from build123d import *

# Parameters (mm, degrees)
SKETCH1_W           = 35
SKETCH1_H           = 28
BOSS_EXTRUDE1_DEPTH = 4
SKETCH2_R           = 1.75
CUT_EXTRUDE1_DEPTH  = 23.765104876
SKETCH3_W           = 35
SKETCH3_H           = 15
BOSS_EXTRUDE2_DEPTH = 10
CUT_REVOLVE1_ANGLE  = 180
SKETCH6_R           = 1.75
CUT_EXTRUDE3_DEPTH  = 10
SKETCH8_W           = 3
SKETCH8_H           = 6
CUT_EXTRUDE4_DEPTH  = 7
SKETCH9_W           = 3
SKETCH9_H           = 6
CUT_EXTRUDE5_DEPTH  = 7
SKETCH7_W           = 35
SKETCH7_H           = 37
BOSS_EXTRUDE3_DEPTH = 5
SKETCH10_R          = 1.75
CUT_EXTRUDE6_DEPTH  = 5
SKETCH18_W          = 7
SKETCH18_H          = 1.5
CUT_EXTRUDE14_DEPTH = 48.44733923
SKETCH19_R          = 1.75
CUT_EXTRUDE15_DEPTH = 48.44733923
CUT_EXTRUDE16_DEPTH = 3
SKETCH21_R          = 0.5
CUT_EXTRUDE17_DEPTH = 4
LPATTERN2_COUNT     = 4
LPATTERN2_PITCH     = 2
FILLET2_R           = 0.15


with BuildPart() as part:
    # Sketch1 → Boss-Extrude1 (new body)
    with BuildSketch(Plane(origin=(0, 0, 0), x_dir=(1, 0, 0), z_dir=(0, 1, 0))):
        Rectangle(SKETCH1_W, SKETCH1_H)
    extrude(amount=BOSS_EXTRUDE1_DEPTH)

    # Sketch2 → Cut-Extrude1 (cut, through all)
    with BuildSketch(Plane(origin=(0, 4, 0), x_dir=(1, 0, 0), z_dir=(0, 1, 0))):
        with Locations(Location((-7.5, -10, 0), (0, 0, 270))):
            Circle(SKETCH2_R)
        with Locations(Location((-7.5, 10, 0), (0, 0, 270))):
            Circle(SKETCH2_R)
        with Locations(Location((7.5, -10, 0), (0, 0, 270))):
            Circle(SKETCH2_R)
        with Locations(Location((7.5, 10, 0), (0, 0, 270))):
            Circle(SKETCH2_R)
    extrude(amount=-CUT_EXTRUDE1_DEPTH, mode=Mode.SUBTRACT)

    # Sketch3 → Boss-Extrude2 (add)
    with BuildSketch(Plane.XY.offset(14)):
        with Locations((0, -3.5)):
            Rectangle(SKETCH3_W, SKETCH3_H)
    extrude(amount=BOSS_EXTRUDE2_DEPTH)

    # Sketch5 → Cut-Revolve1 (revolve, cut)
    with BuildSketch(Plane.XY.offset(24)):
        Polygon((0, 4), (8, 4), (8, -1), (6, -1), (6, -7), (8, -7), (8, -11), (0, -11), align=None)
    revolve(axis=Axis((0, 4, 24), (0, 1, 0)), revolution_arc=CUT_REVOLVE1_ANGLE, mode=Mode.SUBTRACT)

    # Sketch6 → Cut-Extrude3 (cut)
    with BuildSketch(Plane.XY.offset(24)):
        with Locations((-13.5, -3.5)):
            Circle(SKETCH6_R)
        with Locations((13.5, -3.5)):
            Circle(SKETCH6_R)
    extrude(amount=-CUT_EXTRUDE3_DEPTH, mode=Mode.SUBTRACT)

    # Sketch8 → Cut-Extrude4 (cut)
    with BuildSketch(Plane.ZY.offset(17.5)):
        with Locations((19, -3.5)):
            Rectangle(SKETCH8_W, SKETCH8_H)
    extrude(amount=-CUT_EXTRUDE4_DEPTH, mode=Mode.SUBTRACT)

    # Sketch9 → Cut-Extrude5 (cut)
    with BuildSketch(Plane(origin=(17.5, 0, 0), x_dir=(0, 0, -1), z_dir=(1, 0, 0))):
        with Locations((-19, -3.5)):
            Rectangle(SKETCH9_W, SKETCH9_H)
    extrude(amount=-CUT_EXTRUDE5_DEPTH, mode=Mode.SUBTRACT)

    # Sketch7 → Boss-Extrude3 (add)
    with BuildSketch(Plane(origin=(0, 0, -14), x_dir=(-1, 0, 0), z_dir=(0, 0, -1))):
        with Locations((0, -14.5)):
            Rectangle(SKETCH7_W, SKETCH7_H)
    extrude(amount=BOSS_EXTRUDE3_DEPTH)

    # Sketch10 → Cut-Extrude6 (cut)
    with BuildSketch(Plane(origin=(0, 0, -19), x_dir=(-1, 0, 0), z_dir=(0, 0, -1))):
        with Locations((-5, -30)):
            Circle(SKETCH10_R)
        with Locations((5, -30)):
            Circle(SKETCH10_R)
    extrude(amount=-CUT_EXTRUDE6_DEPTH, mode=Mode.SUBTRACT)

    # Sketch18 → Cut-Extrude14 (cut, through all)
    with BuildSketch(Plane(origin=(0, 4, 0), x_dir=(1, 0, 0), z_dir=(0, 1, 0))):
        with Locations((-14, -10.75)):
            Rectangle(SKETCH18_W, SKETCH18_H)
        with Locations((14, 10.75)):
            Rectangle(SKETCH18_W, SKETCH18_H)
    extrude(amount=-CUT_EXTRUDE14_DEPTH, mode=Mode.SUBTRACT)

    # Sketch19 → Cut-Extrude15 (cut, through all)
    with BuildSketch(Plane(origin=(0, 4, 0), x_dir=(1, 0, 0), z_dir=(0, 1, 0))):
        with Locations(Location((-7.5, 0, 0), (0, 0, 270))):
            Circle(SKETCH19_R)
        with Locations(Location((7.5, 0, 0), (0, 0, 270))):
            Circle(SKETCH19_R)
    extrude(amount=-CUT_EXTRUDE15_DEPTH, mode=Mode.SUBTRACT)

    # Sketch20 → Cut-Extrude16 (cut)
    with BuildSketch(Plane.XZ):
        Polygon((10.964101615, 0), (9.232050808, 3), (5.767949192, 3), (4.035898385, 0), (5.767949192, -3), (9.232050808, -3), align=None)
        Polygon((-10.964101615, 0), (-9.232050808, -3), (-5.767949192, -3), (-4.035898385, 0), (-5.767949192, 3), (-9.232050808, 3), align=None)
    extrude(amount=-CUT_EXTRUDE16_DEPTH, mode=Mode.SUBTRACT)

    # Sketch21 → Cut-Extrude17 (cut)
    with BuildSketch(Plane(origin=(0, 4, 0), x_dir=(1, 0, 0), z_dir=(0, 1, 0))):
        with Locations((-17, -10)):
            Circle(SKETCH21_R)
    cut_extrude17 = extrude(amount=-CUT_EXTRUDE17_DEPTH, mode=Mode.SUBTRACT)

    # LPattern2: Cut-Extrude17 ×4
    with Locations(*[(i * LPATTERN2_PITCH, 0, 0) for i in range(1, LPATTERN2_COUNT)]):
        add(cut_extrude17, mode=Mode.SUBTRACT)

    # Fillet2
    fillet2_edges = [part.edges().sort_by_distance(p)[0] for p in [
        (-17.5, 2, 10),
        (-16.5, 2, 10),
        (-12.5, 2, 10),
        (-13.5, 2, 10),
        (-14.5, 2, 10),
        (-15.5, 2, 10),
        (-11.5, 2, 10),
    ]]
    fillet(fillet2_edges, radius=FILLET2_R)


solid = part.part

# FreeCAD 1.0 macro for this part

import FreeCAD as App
import Part
import Sketcher

V = App.Vector
Q = App.Units.Quantity


def edges_at(feature, points):
    """Names of the edges that pass closest to the given points."""
    edges = feature.Shape.Edges
    near = lambda p: min(range(len(edges)), key=lambda i: edges[i].distToShape(Part.Vertex(*p))[0])
    return sorted({f"Edge{near(p) + 1}" for p in points})


def add_polygon(sketch, points):
    """Adds a closed chain of lines whose ends are joined by coincident constraints."""
    first, n = sketch.GeometryCount, len(points)
    for a, b in zip(points, points[1:] + points[:1]):
        sketch.addGeometry(Part.LineSegment(App.Vector(*a, 0), App.Vector(*b, 0)), False)
    for i in range(n):
        sketch.addConstraint(Sketcher.Constraint("Coincident", first + i, 2, first + (i + 1) % n, 1))

doc = App.newDocument("Part")
body = doc.addObject("PartDesign::Body", "Body")

# Sketch on XZ plane
sketch1 = body.newObject("Sketcher::SketchObject", "Sketch")
sketch1.AttachmentSupport = (doc.getObject("XZ_Plane"), [""])
sketch1.MapMode = "FlatFace"
add_polygon(sketch1, [(-18, -14), (-18, 14), (18, 14), (18, -14)])  # lines 0-3
sketch1.addConstraint(Sketcher.Constraint("Vertical", 0))
sketch1.addConstraint(Sketcher.Constraint("Horizontal", 1))
sketch1.addConstraint(Sketcher.Constraint("Vertical", 2))
sketch1.addConstraint(Sketcher.Constraint("Horizontal", 3))
sketch1.addConstraint(Sketcher.Constraint("Symmetric", 0, 2, 2, 2, -1, 1))
sketch1.addConstraint(Sketcher.Constraint("DistanceX", 1, 1, 1, 2, 35.0))
sketch1.addConstraint(Sketcher.Constraint("DistanceY", 0, 1, 0, 2, 28.0))
pad1 = body.newObject("PartDesign::Pad", "Pad")
pad1.Profile = sketch1
pad1.Length = 4
pad1.Reversed = True

# Sketch on XZ plane
sketch2 = body.newObject("Sketcher::SketchObject", "Sketch001")
sketch2.AttachmentSupport = (doc.getObject("XZ_Plane"), [""])
sketch2.MapMode = "FlatFace"
sketch2.AttachmentOffset = App.Placement(V(0, 0, -4), App.Rotation())
sketch2.addGeometry(Part.Circle(V(-7.5, 10, 0), V(0, 0, 1), 1.8), False)
sketch2.addGeometry(Part.Circle(V(-7.5, -10, 0), V(0, 0, 1), 1.8), False)
sketch2.addGeometry(Part.Circle(V(7.5, 10, 0), V(0, 0, 1), 1.8), False)
sketch2.addGeometry(Part.Circle(V(7.5, -10, 0), V(0, 0, 1), 1.8), False)
sketch2.addConstraint(Sketcher.Constraint("Equal", 0, 1))
sketch2.addConstraint(Sketcher.Constraint("Equal", 1, 2))
sketch2.addConstraint(Sketcher.Constraint("Equal", 2, 3))
sketch2.addConstraint(Sketcher.Constraint("Symmetric", 1, 3, 2, 3, -1, 1))
sketch2.addConstraint(Sketcher.Constraint("Symmetric", 0, 3, 3, 3, -1, 1))
sketch2.addConstraint(Sketcher.Constraint("Symmetric", 0, 3, 2, 3, -2))
sketch2.addConstraint(Sketcher.Constraint("Diameter", 0, 3.5))
sketch2.addConstraint(Sketcher.Constraint("DistanceY", -1, 1, 0, 3, 10.0))
sketch2.addConstraint(Sketcher.Constraint("DistanceX", 0, 3, 2, 3, 15.0))
pocket1 = body.newObject("PartDesign::Pocket", "Pocket")
pocket1.Profile = sketch2
pocket1.Type = "ThroughAll"
pocket1.Reversed = True

# Sketch on XY plane
sketch3 = body.newObject("Sketcher::SketchObject", "Sketch002")
sketch3.AttachmentSupport = (doc.getObject("XY_Plane"), [""])
sketch3.MapMode = "FlatFace"
sketch3.AttachmentOffset = App.Placement(V(0, 0, 14), App.Rotation())
add_polygon(sketch3, [(-18, 4), (-18, -11), (18, -11), (18, 4)])  # lines 0-3
sketch3.addConstraint(Sketcher.Constraint("Vertical", 0))
sketch3.addConstraint(Sketcher.Constraint("Horizontal", 1))
sketch3.addConstraint(Sketcher.Constraint("Vertical", 2))
sketch3.addConstraint(Sketcher.Constraint("Horizontal", 3))
sketch3.addConstraint(Sketcher.Constraint("DistanceX", 1, 1, 1, 2, 35.0))
sketch3.addConstraint(Sketcher.Constraint("DistanceY", 0, 2, 0, 1, 15.0))
sketch3.addConstraint(Sketcher.Constraint("DistanceY", 0, 2, -1, 1, 11.0))
sketch3.addConstraint(Sketcher.Constraint("DistanceX", 0, 2, -1, 1, 17.5))
pad2 = body.newObject("PartDesign::Pad", "Pad001")
pad2.Profile = sketch3
pad2.Length = 10

# Sketch on XY plane
sketch4 = body.newObject("Sketcher::SketchObject", "Sketch003")
sketch4.AttachmentSupport = (doc.getObject("XY_Plane"), [""])
sketch4.MapMode = "FlatFace"
sketch4.AttachmentOffset = App.Placement(V(0, 0, 24), App.Rotation())
add_polygon(sketch4, [(8, 4), (0, 4), (0, -11), (8, -11), (8, -7), (6, -7), (6, -1), (8, -1)])  # lines 0-7
sketch4.addConstraint(Sketcher.Constraint("Horizontal", 0))
sketch4.addConstraint(Sketcher.Constraint("Vertical", 1))
sketch4.addConstraint(Sketcher.Constraint("Horizontal", 2))
sketch4.addConstraint(Sketcher.Constraint("Vertical", 3))
sketch4.addConstraint(Sketcher.Constraint("Horizontal", 4))
sketch4.addConstraint(Sketcher.Constraint("Vertical", 5))
sketch4.addConstraint(Sketcher.Constraint("Horizontal", 6))
sketch4.addConstraint(Sketcher.Constraint("Vertical", 7))
sketch4.addConstraint(Sketcher.Constraint("PointOnObject", 0, 2, -2))
sketch4.addConstraint(Sketcher.Constraint("Vertical", 3, 2, 6, 2))
sketch4.addConstraint(Sketcher.Constraint("DistanceX", 0, 2, 0, 1, 8.0))
sketch4.addConstraint(Sketcher.Constraint("DistanceX", 4, 2, 4, 1, 2.0))
sketch4.addConstraint(Sketcher.Constraint("DistanceY", 1, 2, 1, 1, 15.0))
sketch4.addConstraint(Sketcher.Constraint("DistanceY", 3, 1, 3, 2, 4.0))
sketch4.addConstraint(Sketcher.Constraint("DistanceY", 5, 1, 5, 2, 6.0))
sketch4.addConstraint(Sketcher.Constraint("DistanceY", -1, 1, 0, 2, 4.0))
groove = body.newObject("PartDesign::Groove", "Groove")
groove.Profile = sketch4
groove.ReferenceAxis = (sketch4, ["V_Axis"])
groove.Angle = 180

# Sketch on XY plane
sketch5 = body.newObject("Sketcher::SketchObject", "Sketch004")
sketch5.AttachmentSupport = (doc.getObject("XY_Plane"), [""])
sketch5.MapMode = "FlatFace"
sketch5.AttachmentOffset = App.Placement(V(0, 0, 24), App.Rotation())
sketch5.addGeometry(Part.Circle(V(-13.5, -3.5, 0), V(0, 0, 1), 1.8), False)
sketch5.addGeometry(Part.Circle(V(13.5, -3.5, 0), V(0, 0, 1), 1.8), False)
sketch5.addConstraint(Sketcher.Constraint("Equal", 0, 1))
sketch5.addConstraint(Sketcher.Constraint("Symmetric", 0, 3, 1, 3, -2))
sketch5.addConstraint(Sketcher.Constraint("Diameter", 0, 3.5))
sketch5.addConstraint(Sketcher.Constraint("DistanceX", 0, 3, 1, 3, 27.0))
sketch5.addConstraint(Sketcher.Constraint("DistanceY", 0, 3, -1, 1, 3.5))
pocket2 = body.newObject("PartDesign::Pocket", "Pocket001")
pocket2.Profile = sketch5
pocket2.Length = 10

# Sketch on YZ plane
sketch6 = body.newObject("Sketcher::SketchObject", "Sketch005")
sketch6.AttachmentSupport = (doc.getObject("YZ_Plane"), [""])
sketch6.MapMode = "FlatFace"
sketch6.AttachmentOffset = App.Placement(V(0, 0, -17.5), App.Rotation())
add_polygon(sketch6, [(-0.5, 17.5), (-6.5, 17.5), (-6.5, 20.5), (-0.5, 20.5)])  # lines 0-3
sketch6.addConstraint(Sketcher.Constraint("Horizontal", 0))
sketch6.addConstraint(Sketcher.Constraint("Vertical", 1))
sketch6.addConstraint(Sketcher.Constraint("Horizontal", 2))
sketch6.addConstraint(Sketcher.Constraint("Vertical", 3))
sketch6.addConstraint(Sketcher.Constraint("DistanceX", 0, 2, 0, 1, 6.0))
sketch6.addConstraint(Sketcher.Constraint("DistanceY", 1, 1, 1, 2, 3.0))
sketch6.addConstraint(Sketcher.Constraint("DistanceX", 0, 2, -1, 1, 6.5))
sketch6.addConstraint(Sketcher.Constraint("DistanceY", -1, 1, 0, 2, 17.5))
pocket3 = body.newObject("PartDesign::Pocket", "Pocket002")
pocket3.Profile = sketch6
pocket3.Length = 7
pocket3.Reversed = True

# Sketch on YZ plane
sketch7 = body.newObject("Sketcher::SketchObject", "Sketch006")
sketch7.AttachmentSupport = (doc.getObject("YZ_Plane"), [""])
sketch7.MapMode = "FlatFace"
sketch7.AttachmentOffset = App.Placement(V(0, 0, 17.5), App.Rotation())
add_polygon(sketch7, [(-0.5, 20.5), (-6.5, 20.5), (-6.5, 17.5), (-0.5, 17.5)])  # lines 0-3
sketch7.addConstraint(Sketcher.Constraint("Horizontal", 0))
sketch7.addConstraint(Sketcher.Constraint("Vertical", 1))
sketch7.addConstraint(Sketcher.Constraint("Horizontal", 2))
sketch7.addConstraint(Sketcher.Constraint("Vertical", 3))
sketch7.addConstraint(Sketcher.Constraint("DistanceX", 0, 2, 0, 1, 6.0))
sketch7.addConstraint(Sketcher.Constraint("DistanceY", 1, 2, 1, 1, 3.0))
sketch7.addConstraint(Sketcher.Constraint("DistanceX", 0, 2, -1, 1, 6.5))
sketch7.addConstraint(Sketcher.Constraint("DistanceY", -1, 1, 0, 2, 20.5))
pocket4 = body.newObject("PartDesign::Pocket", "Pocket003")
pocket4.Profile = sketch7
pocket4.Length = 7

# Sketch on XY plane
sketch8 = body.newObject("Sketcher::SketchObject", "Sketch007")
sketch8.AttachmentSupport = (doc.getObject("XY_Plane"), [""])
sketch8.MapMode = "FlatFace"
sketch8.AttachmentOffset = App.Placement(V(0, 0, -14), App.Rotation())
add_polygon(sketch8, [(18, 4), (18, -33), (-18, -33), (-18, 4)])  # lines 0-3
sketch8.addConstraint(Sketcher.Constraint("Vertical", 0))
sketch8.addConstraint(Sketcher.Constraint("Horizontal", 1))
sketch8.addConstraint(Sketcher.Constraint("Vertical", 2))
sketch8.addConstraint(Sketcher.Constraint("Horizontal", 3))
sketch8.addConstraint(Sketcher.Constraint("DistanceX", 1, 2, 1, 1, 35.0))
sketch8.addConstraint(Sketcher.Constraint("DistanceY", 0, 2, 0, 1, 37.0))
sketch8.addConstraint(Sketcher.Constraint("DistanceY", 0, 2, -1, 1, 33.0))
sketch8.addConstraint(Sketcher.Constraint("DistanceX", -1, 1, 0, 2, 17.5))
pad3 = body.newObject("PartDesign::Pad", "Pad002")
pad3.Profile = sketch8
pad3.Length = 5
pad3.Reversed = True

# Sketch on XY plane
sketch9 = body.newObject("Sketcher::SketchObject", "Sketch008")
sketch9.AttachmentSupport = (doc.getObject("XY_Plane"), [""])
sketch9.MapMode = "FlatFace"
sketch9.AttachmentOffset = App.Placement(V(0, 0, -19), App.Rotation())
sketch9.addGeometry(Part.Circle(V(5, -30, 0), V(0, 0, 1), 1.8), False)
sketch9.addGeometry(Part.Circle(V(-5, -30, 0), V(0, 0, 1), 1.8), False)
sketch9.addConstraint(Sketcher.Constraint("Equal", 0, 1))
sketch9.addConstraint(Sketcher.Constraint("Symmetric", 0, 3, 1, 3, -2))
sketch9.addConstraint(Sketcher.Constraint("Diameter", 0, 3.5))
sketch9.addConstraint(Sketcher.Constraint("DistanceX", -1, 1, 0, 3, 5.0))
sketch9.addConstraint(Sketcher.Constraint("DistanceY", 0, 3, -1, 1, 30.0))
pocket5 = body.newObject("PartDesign::Pocket", "Pocket004")
pocket5.Profile = sketch9
pocket5.Length = 5
pocket5.Reversed = True

# Sketch on XZ plane
sketch10 = body.newObject("Sketcher::SketchObject", "Sketch009")
sketch10.AttachmentSupport = (doc.getObject("XZ_Plane"), [""])
sketch10.MapMode = "FlatFace"
sketch10.AttachmentOffset = App.Placement(V(0, 0, -4), App.Rotation())
add_polygon(sketch10, [(-17.5, 10), (-17.5, 11.5), (-10.5, 11.5), (-10.5, 10)])  # lines 0-3
add_polygon(sketch10, [(10.5, -11.5), (10.5, -10), (17.5, -10), (17.5, -11.5)])  # lines 4-7
sketch10.addConstraint(Sketcher.Constraint("Vertical", 0))
sketch10.addConstraint(Sketcher.Constraint("Horizontal", 1))
sketch10.addConstraint(Sketcher.Constraint("Vertical", 2))
sketch10.addConstraint(Sketcher.Constraint("Horizontal", 3))
sketch10.addConstraint(Sketcher.Constraint("Vertical", 4))
sketch10.addConstraint(Sketcher.Constraint("Horizontal", 5))
sketch10.addConstraint(Sketcher.Constraint("Vertical", 6))
sketch10.addConstraint(Sketcher.Constraint("Horizontal", 7))
sketch10.addConstraint(Sketcher.Constraint("Symmetric", 2, 2, 4, 2, -1, 1))
sketch10.addConstraint(Sketcher.Constraint("Symmetric", 0, 2, 6, 2, -1, 1))
sketch10.addConstraint(Sketcher.Constraint("DistanceX", 1, 1, 1, 2, 7.0))
sketch10.addConstraint(Sketcher.Constraint("DistanceY", 0, 1, 0, 2, 1.5))
sketch10.addConstraint(Sketcher.Constraint("DistanceY", -1, 1, 2, 2, 10.0))
sketch10.addConstraint(Sketcher.Constraint("DistanceX", 2, 2, 4, 2, 21.0))
pocket6 = body.newObject("PartDesign::Pocket", "Pocket005")
pocket6.Profile = sketch10
pocket6.Type = "ThroughAll"
pocket6.Reversed = True

# Sketch on XZ plane
sketch11 = body.newObject("Sketcher::SketchObject", "Sketch010")
sketch11.AttachmentSupport = (doc.getObject("XZ_Plane"), [""])
sketch11.MapMode = "FlatFace"
sketch11.AttachmentOffset = App.Placement(V(0, 0, -4), App.Rotation())
sketch11.addGeometry(Part.Circle(V(-7.5, 0, 0), V(0, 0, 1), 1.8), False)
sketch11.addGeometry(Part.Circle(V(7.5, 0, 0), V(0, 0, 1), 1.8), False)
sketch11.addConstraint(Sketcher.Constraint("Equal", 0, 1))
sketch11.addConstraint(Sketcher.Constraint("Symmetric", 0, 3, 1, 3, -1, 1))
sketch11.addConstraint(Sketcher.Constraint("PointOnObject", 0, 3, -1))
sketch11.addConstraint(Sketcher.Constraint("Diameter", 0, 3.5))
sketch11.addConstraint(Sketcher.Constraint("DistanceX", 0, 3, 1, 3, 15.0))
pocket7 = body.newObject("PartDesign::Pocket", "Pocket006")
pocket7.Profile = sketch11
pocket7.Type = "ThroughAll"
pocket7.Reversed = True

# Sketch on XZ plane
sketch12 = body.newObject("Sketcher::SketchObject", "Sketch011")
sketch12.AttachmentSupport = (doc.getObject("XZ_Plane"), [""])
sketch12.MapMode = "FlatFace"
add_polygon(sketch12, [(11, 0), (9.2, 3), (5.8, 3), (4, 0), (5.8, -3), (9.2, -3)])  # lines 0-5
add_polygon(sketch12, [(-11, 0), (-9.2, -3), (-5.8, -3), (-4, 0), (-5.8, 3), (-9.2, 3)])  # lines 6-11
sketch12.addConstraint(Sketcher.Constraint("Horizontal", 1))
sketch12.addConstraint(Sketcher.Constraint("Horizontal", 4))
sketch12.addConstraint(Sketcher.Constraint("Horizontal", 7))
sketch12.addConstraint(Sketcher.Constraint("Horizontal", 10))
sketch12.addConstraint(Sketcher.Constraint("Symmetric", 0, 2, 6, 2, -1, 1))
sketch12.addConstraint(Sketcher.Constraint("Symmetric", 2, 2, 8, 2, -1, 1))
sketch12.addConstraint(Sketcher.Constraint("Symmetric", 3, 2, 9, 2, -1, 1))
sketch12.addConstraint(Sketcher.Constraint("Symmetric", 5, 2, 11, 2, -1, 1))
sketch12.addConstraint(Sketcher.Constraint("Symmetric", 4, 2, 6, 2, -2))
sketch12.addConstraint(Sketcher.Constraint("PointOnObject", 2, 2, -1))
sketch12.addConstraint(Sketcher.Constraint("PointOnObject", 5, 2, -1))
sketch12.addConstraint(Sketcher.Constraint("Parallel", 0, 3))
sketch12.addConstraint(Sketcher.Constraint("Parallel", 2, 5))
sketch12.addConstraint(Sketcher.Constraint("Parallel", 5, 8))
sketch12.addConstraint(Sketcher.Constraint("Parallel", 8, 11))
sketch12.addConstraint(Sketcher.Constraint("Angle", 0, Q("120 deg")))
sketch12.addConstraint(Sketcher.Constraint("DistanceY", -1, 1, 0, 2, 3.0))
sketch12.addConstraint(Sketcher.Constraint("DistanceX", 6, 2, 3, 2, 15.0))
sketch12.addConstraint(Sketcher.Constraint("DistanceX", 1, 2, 1, 1, 3.464102))
pocket8 = body.newObject("PartDesign::Pocket", "Pocket007")
pocket8.Profile = sketch12
pocket8.Length = 3

# Sketch on XZ plane
sketch13 = body.newObject("Sketcher::SketchObject", "Sketch012")
sketch13.AttachmentSupport = (doc.getObject("XZ_Plane"), [""])
sketch13.MapMode = "FlatFace"
sketch13.AttachmentOffset = App.Placement(V(0, 0, -4), App.Rotation())
sketch13.addGeometry(Part.Circle(V(-17, 10, 0), V(0, 0, 1), 0.5), False)
sketch13.addConstraint(Sketcher.Constraint("Diameter", 0, 1.0))
sketch13.addConstraint(Sketcher.Constraint("DistanceX", 0, 3, -1, 1, 17.0))
sketch13.addConstraint(Sketcher.Constraint("DistanceY", -1, 1, 0, 3, 10.0))
pocket9 = body.newObject("PartDesign::Pocket", "Pocket008")
pocket9.Profile = sketch13
pocket9.Length = 4
pocket9.Reversed = True
doc.recompute()

linearpattern = body.newObject("PartDesign::LinearPattern", "LinearPattern")
linearpattern.Originals = [pocket9]
linearpattern.Direction = (doc.getObject("X_Axis"), [""])
linearpattern.Mode = "offset"
linearpattern.Offset = 2
linearpattern.Occurrences = 4
body.Tip = linearpattern
doc.recompute()

fillet = body.newObject("PartDesign::Fillet", "Fillet")
fillet.Base = (linearpattern, edges_at(linearpattern, [
    (-17.5, 2, 10),
    (-16.5, 2, 10),
    (-12.5, 2, 10),
    (-13.5, 2, 10),
    (-14.5, 2, 10),
    (-15.5, 2, 10),
    (-11.5, 2, 10),
]))
fillet.Radius = 0.15

doc.recompute()
